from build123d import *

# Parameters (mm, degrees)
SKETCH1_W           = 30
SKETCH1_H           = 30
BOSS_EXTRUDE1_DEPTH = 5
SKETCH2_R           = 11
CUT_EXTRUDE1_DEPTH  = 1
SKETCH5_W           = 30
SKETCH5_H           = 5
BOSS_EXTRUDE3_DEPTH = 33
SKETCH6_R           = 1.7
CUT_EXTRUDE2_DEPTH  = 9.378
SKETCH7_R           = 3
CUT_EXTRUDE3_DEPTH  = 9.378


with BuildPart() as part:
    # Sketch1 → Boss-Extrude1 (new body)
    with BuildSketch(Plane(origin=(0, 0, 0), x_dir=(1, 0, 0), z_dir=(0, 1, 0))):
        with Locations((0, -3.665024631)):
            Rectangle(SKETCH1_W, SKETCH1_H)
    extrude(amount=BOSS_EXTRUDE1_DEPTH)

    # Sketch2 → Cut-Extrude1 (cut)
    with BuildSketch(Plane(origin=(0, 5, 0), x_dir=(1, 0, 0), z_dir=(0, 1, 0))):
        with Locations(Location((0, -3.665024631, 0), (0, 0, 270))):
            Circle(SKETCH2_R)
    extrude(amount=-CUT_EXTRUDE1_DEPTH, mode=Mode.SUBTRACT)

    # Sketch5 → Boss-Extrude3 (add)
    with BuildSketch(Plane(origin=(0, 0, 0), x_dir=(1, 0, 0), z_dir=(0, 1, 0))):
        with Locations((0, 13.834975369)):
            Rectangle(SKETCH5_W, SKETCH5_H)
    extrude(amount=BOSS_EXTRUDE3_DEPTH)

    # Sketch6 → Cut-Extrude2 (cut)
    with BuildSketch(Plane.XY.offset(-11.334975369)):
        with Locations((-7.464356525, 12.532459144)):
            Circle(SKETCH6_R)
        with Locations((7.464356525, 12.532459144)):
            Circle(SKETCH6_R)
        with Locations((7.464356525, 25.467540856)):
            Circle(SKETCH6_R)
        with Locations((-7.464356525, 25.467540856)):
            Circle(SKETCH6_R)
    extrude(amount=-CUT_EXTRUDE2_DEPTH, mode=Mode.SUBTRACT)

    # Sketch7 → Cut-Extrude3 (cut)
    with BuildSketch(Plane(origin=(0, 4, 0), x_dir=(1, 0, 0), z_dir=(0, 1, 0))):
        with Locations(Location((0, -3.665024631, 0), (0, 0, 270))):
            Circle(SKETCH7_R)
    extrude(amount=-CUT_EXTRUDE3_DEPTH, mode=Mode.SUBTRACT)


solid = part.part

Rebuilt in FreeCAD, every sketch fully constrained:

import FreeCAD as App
import Part
import Sketcher
Q = App.Units.Quantity

doc = App.newDocument("Part")
body = doc.addObject("PartDesign::Body", "Body")

# Sketch on XZ plane
sketch1 = body.newObject("Sketcher::SketchObject", "Sketch")
sketch1.AttachmentSupport = (doc.getObject("XZ_Plane"), [""])
sketch1.MapMode = "FlatFace"
sketch1.addGeometry([
    Part.LineSegment(App.Vector(-15, -11, 0), App.Vector(-15, 19, 0)),
    Part.LineSegment(App.Vector(-15, 19, 0), App.Vector(15, 19, 0)),
    Part.LineSegment(App.Vector(15, 19, 0), App.Vector(15, -11, 0)),
    Part.LineSegment(App.Vector(15, -11, 0), App.Vector(-15, -11, 0)),
], False)
sketch1.addConstraint([
    Sketcher.Constraint("Coincident", 0, 2, 1, 1),
    Sketcher.Constraint("Coincident", 1, 2, 2, 1),
    Sketcher.Constraint("Coincident", 2, 2, 3, 1),
    Sketcher.Constraint("Coincident", 3, 2, 0, 1),
    Sketcher.Constraint("Vertical", 0),
    Sketcher.Constraint("Horizontal", 1),
    Sketcher.Constraint("Vertical", 2),
    Sketcher.Constraint("Horizontal", 3),
    Sketcher.Constraint("Equal", 3, 0),
    Sketcher.Constraint("DistanceX", 1, 1, 1, 2, Q("30 mm")),
    Sketcher.Constraint("DistanceX", 0, 2, -1, 1, Q("15 mm")),
    Sketcher.Constraint("DistanceY", -1, 1, 0, 2, Q("18.665025 mm")),
])
pad1 = body.newObject("PartDesign::Pad", "Pad")
pad1.Profile = sketch1
pad1.Length = 5
pad1.Reversed = True

# Sketch on XZ plane
sketch2 = body.newObject("Sketcher::SketchObject", "Sketch001")
sketch2.AttachmentSupport = (doc.getObject("XZ_Plane"), [""])
sketch2.MapMode = "FlatFace"
sketch2.AttachmentOffset = App.Placement(App.Vector(0, 0, -5), App.Rotation())
sketch2.addGeometry(Part.Circle(App.Vector(0, 4, 0), App.Vector(0, 0, 1), 11), False)
sketch2.addConstraint([
    Sketcher.Constraint("PointOnObject", 0, 3, -2),
    Sketcher.Constraint("Diameter", 0, Q("22 mm")),
    Sketcher.Constraint("DistanceY", -1, 1, 0, 3, Q("3.665025 mm")),
])
pocket1 = body.newObject("PartDesign::Pocket", "Pocket")
pocket1.Profile = sketch2
pocket1.Length = 1
pocket1.Reversed = True

# Sketch on XZ plane
sketch3 = body.newObject("Sketcher::SketchObject", "Sketch002")
sketch3.AttachmentSupport = (doc.getObject("XZ_Plane"), [""])
sketch3.MapMode = "FlatFace"
sketch3.addGeometry([
    Part.LineSegment(App.Vector(-15, -16.3, 0), App.Vector(-15, -11.3, 0)),
    Part.LineSegment(App.Vector(-15, -11.3, 0), App.Vector(15, -11.3, 0)),
    Part.LineSegment(App.Vector(15, -11.3, 0), App.Vector(15, -16.3, 0)),
    Part.LineSegment(App.Vector(15, -16.3, 0), App.Vector(-15, -16.3, 0)),
], False)
sketch3.addConstraint([
    Sketcher.Constraint("Coincident", 0, 2, 1, 1),
    Sketcher.Constraint("Coincident", 1, 2, 2, 1),
    Sketcher.Constraint("Coincident", 2, 2, 3, 1),
    Sketcher.Constraint("Coincident", 3, 2, 0, 1),
    Sketcher.Constraint("Vertical", 0),
    Sketcher.Constraint("Horizontal", 1),
    Sketcher.Constraint("Vertical", 2),
    Sketcher.Constraint("Horizontal", 3),
    Sketcher.Constraint("DistanceX", 1, 1, 1, 2, Q("30 mm")),
    Sketcher.Constraint("DistanceY", 0, 1, 0, 2, Q("5 mm")),
    Sketcher.Constraint("DistanceX", 0, 2, -1, 1, Q("15 mm")),
    Sketcher.Constraint("DistanceY", 0, 2, -1, 1, Q("11.334975 mm")),
])
pad2 = body.newObject("PartDesign::Pad", "Pad001")
pad2.Profile = sketch3
pad2.Length = 33
pad2.Reversed = True

# Sketch on XY plane
sketch4 = body.newObject("Sketcher::SketchObject", "Sketch003")
sketch4.AttachmentSupport = (doc.getObject("XY_Plane"), [""])
sketch4.MapMode = "FlatFace"
sketch4.AttachmentOffset = App.Placement(App.Vector(0, 0, -11.334975), App.Rotation())
sketch4.addGeometry([
    Part.Circle(App.Vector(-7.5, 12.5, 0), App.Vector(0, 0, 1), 1.7),
    Part.Circle(App.Vector(7.5, 12.5, 0), App.Vector(0, 0, 1), 1.7),
    Part.Circle(App.Vector(7.5, 25.5, 0), App.Vector(0, 0, 1), 1.7),
    Part.Circle(App.Vector(-7.5, 25.5, 0), App.Vector(0, 0, 1), 1.7),
], False)
sketch4.addConstraint([
    Sketcher.Constraint("Equal", 0, 1),
    Sketcher.Constraint("Equal", 1, 2),
    Sketcher.Constraint("Equal", 2, 3),
    Sketcher.Constraint("Symmetric", 0, 3, 1, 3, -2),
    Sketcher.Constraint("Symmetric", 2, 3, 3, 3, -2),
    Sketcher.Constraint("Vertical", 1, 3, 2, 3),
    Sketcher.Constraint("Diameter", 0, Q("3.4 mm")),
    Sketcher.Constraint("DistanceY", -1, 1, 0, 3, Q("12.532459 mm")),
    Sketcher.Constraint("DistanceY", -1, 1, 2, 3, Q("25.467541 mm")),
    Sketcher.Constraint("DistanceX", 0, 3, -1, 1, Q("7.464357 mm")),
])
pocket2 = body.newObject("PartDesign::Pocket", "Pocket001")
pocket2.Profile = sketch4
pocket2.Length = 9.378

# Sketch on XZ plane
sketch5 = body.newObject("Sketcher::SketchObject", "Sketch004")
sketch5.AttachmentSupport = (doc.getObject("XZ_Plane"), [""])
sketch5.MapMode = "FlatFace"
sketch5.AttachmentOffset = App.Placement(App.Vector(0, 0, -4), App.Rotation())
sketch5.addGeometry(Part.Circle(App.Vector(0, 3.7, 0), App.Vector(0, 0, 1), 3), False)
sketch5.addConstraint([
    Sketcher.Constraint("PointOnObject", 0, 3, -2),
    Sketcher.Constraint("Diameter", 0, Q("6 mm")),
    Sketcher.Constraint("DistanceY", -1, 1, 0, 3, Q("3.665025 mm")),
])
pocket3 = body.newObject("PartDesign::Pocket", "Pocket002")
pocket3.Profile = sketch5
pocket3.Length = 9.378
pocket3.Reversed = True

doc.recompute()
